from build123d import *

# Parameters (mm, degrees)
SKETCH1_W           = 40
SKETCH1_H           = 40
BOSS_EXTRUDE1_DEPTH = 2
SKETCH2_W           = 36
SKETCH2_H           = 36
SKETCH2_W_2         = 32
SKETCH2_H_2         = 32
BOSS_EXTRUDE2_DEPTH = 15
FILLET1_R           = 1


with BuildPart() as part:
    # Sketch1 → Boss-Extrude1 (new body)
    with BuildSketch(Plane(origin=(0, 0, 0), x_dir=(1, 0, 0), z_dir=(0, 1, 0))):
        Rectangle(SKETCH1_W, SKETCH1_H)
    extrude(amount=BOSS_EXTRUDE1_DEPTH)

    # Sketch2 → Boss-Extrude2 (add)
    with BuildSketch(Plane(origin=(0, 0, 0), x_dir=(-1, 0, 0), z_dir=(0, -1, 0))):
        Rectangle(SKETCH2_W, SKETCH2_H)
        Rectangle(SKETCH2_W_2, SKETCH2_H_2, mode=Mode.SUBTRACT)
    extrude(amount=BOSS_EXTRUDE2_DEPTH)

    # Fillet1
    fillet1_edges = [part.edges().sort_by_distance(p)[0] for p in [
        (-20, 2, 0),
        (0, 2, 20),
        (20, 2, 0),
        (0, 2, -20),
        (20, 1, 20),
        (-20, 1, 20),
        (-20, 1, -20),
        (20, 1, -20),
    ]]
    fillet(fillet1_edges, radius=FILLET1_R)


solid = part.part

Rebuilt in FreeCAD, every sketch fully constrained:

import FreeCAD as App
import Part
import Sketcher

V = App.Vector
Q = App.Units.Quantity


def edges_at(feature, points):
    """Names of the edges that pass closest to the given points."""
    edges = feature.Shape.Edges
    near = lambda p: min(range(len(edges)), key=lambda i: edges[i].distToShape(Part.Vertex(*p))[0])
    return sorted({f"Edge{near(p) + 1}" for p in points})


def add_polygon(sketch, points):
    """Adds a closed chain of lines whose ends are joined by coincident constraints."""
    first, n = sketch.GeometryCount, len(points)
    for a, b in zip(points, points[1:] + points[:1]):
        sketch.addGeometry(Part.LineSegment(App.Vector(*a, 0), App.Vector(*b, 0)), False)
    for i in range(n):
        sketch.addConstraint(Sketcher.Constraint("Coincident", first + i, 2, first + (i + 1) % n, 1))

doc = App.newDocument("Part")
params = doc.addObject("Spreadsheet::Sheet", "Params")
for row, (alias, value) in enumerate([
    ("sketch1_width", "40 mm"),
    ("pad1_length", "2 mm"),
    ("sketch2_width", "36 mm"),
    ("sketch2_width2", "32 mm"),
    ("pad2_length", "15 mm"),
    ("fillet_radius", "1 mm"),
], start=1):
    params.set(f"A{row}", alias)
    params.set(f"B{row}", "=" + value)
    params.setAlias(f"B{row}", alias)

body = doc.addObject("PartDesign::Body", "Body")

# Sketch on XZ plane
sketch1 = body.newObject("Sketcher::SketchObject", "Sketch")
sketch1.AttachmentSupport = (doc.getObject("XZ_Plane"), [""])
sketch1.MapMode = "FlatFace"
add_polygon(sketch1, [(-20, -20), (-20, 20), (20, 20), (20, -20)])  # lines 0-3
sketch1.addConstraint(Sketcher.Constraint("Vertical", 0))
sketch1.addConstraint(Sketcher.Constraint("Horizontal", 1))
sketch1.addConstraint(Sketcher.Constraint("Vertical", 2))
sketch1.addConstraint(Sketcher.Constraint("Horizontal", 3))
sketch1.addConstraint(Sketcher.Constraint("Symmetric", 0, 2, 2, 2, -1, 1))
sketch1.addConstraint(Sketcher.Constraint("Equal", 3, 0))
sketch1.addConstraint(Sketcher.Constraint("DistanceX", 1, 1, 1, 2, Q("40 mm")))
sketch1.setExpression("Constraints[10]", "Params.sketch1_width")
pad1 = body.newObject("PartDesign::Pad", "Pad")
pad1.Profile = sketch1
pad1.setExpression("Length", "Params.pad1_length")
pad1.Reversed = True

# Sketch on XZ plane
sketch2 = body.newObject("Sketcher::SketchObject", "Sketch001")
sketch2.AttachmentSupport = (doc.getObject("XZ_Plane"), [""])
sketch2.MapMode = "FlatFace"
add_polygon(sketch2, [(18, -18), (18, 18), (-18, 18), (-18, -18)])  # lines 0-3
add_polygon(sketch2, [(-16, 16), (16, 16), (16, -16), (-16, -16)])  # lines 4-7
sketch2.addConstraint(Sketcher.Constraint("Vertical", 0))
sketch2.addConstraint(Sketcher.Constraint("Horizontal", 1))
sketch2.addConstraint(Sketcher.Constraint("Vertical", 2))
sketch2.addConstraint(Sketcher.Constraint("Horizontal", 3))
sketch2.addConstraint(Sketcher.Constraint("Horizontal", 4))
sketch2.addConstraint(Sketcher.Constraint("Vertical", 5))
sketch2.addConstraint(Sketcher.Constraint("Horizontal", 6))
sketch2.addConstraint(Sketcher.Constraint("Vertical", 7))
sketch2.addConstraint(Sketcher.Constraint("Symmetric", 0, 2, 2, 2, -1, 1))
sketch2.addConstraint(Sketcher.Constraint("Symmetric", 4, 2, 6, 2, -1, 1))
sketch2.addConstraint(Sketcher.Constraint("Equal", 3, 0))
sketch2.addConstraint(Sketcher.Constraint("Equal", 6, 5))
sketch2.addConstraint(Sketcher.Constraint("DistanceX", 1, 2, 1, 1, Q("36 mm")))
sketch2.addConstraint(Sketcher.Constraint("DistanceX", 4, 1, 4, 2, Q("32 mm")))
sketch2.setExpression("Constraints[20]", "Params.sketch2_width")
sketch2.setExpression("Constraints[21]", "Params.sketch2_width2")
pad2 = body.newObject("PartDesign::Pad", "Pad001")
pad2.Profile = sketch2
pad2.setExpression("Length", "Params.pad2_length")
doc.recompute()

fillet = body.newObject("PartDesign::Fillet", "Fillet")
fillet.Base = (pad2, edges_at(pad2, [
    (-20, 2, 0),
    (0, 2, 20),
    (20, 2, 0),
    (0, 2, -20),
    (20, 1, 20),
    (-20, 1, 20),
    (-20, 1, -20),
    (20, 1, -20),
]))
fillet.setExpression("Radius", "Params.fillet_radius")

doc.recompute()
